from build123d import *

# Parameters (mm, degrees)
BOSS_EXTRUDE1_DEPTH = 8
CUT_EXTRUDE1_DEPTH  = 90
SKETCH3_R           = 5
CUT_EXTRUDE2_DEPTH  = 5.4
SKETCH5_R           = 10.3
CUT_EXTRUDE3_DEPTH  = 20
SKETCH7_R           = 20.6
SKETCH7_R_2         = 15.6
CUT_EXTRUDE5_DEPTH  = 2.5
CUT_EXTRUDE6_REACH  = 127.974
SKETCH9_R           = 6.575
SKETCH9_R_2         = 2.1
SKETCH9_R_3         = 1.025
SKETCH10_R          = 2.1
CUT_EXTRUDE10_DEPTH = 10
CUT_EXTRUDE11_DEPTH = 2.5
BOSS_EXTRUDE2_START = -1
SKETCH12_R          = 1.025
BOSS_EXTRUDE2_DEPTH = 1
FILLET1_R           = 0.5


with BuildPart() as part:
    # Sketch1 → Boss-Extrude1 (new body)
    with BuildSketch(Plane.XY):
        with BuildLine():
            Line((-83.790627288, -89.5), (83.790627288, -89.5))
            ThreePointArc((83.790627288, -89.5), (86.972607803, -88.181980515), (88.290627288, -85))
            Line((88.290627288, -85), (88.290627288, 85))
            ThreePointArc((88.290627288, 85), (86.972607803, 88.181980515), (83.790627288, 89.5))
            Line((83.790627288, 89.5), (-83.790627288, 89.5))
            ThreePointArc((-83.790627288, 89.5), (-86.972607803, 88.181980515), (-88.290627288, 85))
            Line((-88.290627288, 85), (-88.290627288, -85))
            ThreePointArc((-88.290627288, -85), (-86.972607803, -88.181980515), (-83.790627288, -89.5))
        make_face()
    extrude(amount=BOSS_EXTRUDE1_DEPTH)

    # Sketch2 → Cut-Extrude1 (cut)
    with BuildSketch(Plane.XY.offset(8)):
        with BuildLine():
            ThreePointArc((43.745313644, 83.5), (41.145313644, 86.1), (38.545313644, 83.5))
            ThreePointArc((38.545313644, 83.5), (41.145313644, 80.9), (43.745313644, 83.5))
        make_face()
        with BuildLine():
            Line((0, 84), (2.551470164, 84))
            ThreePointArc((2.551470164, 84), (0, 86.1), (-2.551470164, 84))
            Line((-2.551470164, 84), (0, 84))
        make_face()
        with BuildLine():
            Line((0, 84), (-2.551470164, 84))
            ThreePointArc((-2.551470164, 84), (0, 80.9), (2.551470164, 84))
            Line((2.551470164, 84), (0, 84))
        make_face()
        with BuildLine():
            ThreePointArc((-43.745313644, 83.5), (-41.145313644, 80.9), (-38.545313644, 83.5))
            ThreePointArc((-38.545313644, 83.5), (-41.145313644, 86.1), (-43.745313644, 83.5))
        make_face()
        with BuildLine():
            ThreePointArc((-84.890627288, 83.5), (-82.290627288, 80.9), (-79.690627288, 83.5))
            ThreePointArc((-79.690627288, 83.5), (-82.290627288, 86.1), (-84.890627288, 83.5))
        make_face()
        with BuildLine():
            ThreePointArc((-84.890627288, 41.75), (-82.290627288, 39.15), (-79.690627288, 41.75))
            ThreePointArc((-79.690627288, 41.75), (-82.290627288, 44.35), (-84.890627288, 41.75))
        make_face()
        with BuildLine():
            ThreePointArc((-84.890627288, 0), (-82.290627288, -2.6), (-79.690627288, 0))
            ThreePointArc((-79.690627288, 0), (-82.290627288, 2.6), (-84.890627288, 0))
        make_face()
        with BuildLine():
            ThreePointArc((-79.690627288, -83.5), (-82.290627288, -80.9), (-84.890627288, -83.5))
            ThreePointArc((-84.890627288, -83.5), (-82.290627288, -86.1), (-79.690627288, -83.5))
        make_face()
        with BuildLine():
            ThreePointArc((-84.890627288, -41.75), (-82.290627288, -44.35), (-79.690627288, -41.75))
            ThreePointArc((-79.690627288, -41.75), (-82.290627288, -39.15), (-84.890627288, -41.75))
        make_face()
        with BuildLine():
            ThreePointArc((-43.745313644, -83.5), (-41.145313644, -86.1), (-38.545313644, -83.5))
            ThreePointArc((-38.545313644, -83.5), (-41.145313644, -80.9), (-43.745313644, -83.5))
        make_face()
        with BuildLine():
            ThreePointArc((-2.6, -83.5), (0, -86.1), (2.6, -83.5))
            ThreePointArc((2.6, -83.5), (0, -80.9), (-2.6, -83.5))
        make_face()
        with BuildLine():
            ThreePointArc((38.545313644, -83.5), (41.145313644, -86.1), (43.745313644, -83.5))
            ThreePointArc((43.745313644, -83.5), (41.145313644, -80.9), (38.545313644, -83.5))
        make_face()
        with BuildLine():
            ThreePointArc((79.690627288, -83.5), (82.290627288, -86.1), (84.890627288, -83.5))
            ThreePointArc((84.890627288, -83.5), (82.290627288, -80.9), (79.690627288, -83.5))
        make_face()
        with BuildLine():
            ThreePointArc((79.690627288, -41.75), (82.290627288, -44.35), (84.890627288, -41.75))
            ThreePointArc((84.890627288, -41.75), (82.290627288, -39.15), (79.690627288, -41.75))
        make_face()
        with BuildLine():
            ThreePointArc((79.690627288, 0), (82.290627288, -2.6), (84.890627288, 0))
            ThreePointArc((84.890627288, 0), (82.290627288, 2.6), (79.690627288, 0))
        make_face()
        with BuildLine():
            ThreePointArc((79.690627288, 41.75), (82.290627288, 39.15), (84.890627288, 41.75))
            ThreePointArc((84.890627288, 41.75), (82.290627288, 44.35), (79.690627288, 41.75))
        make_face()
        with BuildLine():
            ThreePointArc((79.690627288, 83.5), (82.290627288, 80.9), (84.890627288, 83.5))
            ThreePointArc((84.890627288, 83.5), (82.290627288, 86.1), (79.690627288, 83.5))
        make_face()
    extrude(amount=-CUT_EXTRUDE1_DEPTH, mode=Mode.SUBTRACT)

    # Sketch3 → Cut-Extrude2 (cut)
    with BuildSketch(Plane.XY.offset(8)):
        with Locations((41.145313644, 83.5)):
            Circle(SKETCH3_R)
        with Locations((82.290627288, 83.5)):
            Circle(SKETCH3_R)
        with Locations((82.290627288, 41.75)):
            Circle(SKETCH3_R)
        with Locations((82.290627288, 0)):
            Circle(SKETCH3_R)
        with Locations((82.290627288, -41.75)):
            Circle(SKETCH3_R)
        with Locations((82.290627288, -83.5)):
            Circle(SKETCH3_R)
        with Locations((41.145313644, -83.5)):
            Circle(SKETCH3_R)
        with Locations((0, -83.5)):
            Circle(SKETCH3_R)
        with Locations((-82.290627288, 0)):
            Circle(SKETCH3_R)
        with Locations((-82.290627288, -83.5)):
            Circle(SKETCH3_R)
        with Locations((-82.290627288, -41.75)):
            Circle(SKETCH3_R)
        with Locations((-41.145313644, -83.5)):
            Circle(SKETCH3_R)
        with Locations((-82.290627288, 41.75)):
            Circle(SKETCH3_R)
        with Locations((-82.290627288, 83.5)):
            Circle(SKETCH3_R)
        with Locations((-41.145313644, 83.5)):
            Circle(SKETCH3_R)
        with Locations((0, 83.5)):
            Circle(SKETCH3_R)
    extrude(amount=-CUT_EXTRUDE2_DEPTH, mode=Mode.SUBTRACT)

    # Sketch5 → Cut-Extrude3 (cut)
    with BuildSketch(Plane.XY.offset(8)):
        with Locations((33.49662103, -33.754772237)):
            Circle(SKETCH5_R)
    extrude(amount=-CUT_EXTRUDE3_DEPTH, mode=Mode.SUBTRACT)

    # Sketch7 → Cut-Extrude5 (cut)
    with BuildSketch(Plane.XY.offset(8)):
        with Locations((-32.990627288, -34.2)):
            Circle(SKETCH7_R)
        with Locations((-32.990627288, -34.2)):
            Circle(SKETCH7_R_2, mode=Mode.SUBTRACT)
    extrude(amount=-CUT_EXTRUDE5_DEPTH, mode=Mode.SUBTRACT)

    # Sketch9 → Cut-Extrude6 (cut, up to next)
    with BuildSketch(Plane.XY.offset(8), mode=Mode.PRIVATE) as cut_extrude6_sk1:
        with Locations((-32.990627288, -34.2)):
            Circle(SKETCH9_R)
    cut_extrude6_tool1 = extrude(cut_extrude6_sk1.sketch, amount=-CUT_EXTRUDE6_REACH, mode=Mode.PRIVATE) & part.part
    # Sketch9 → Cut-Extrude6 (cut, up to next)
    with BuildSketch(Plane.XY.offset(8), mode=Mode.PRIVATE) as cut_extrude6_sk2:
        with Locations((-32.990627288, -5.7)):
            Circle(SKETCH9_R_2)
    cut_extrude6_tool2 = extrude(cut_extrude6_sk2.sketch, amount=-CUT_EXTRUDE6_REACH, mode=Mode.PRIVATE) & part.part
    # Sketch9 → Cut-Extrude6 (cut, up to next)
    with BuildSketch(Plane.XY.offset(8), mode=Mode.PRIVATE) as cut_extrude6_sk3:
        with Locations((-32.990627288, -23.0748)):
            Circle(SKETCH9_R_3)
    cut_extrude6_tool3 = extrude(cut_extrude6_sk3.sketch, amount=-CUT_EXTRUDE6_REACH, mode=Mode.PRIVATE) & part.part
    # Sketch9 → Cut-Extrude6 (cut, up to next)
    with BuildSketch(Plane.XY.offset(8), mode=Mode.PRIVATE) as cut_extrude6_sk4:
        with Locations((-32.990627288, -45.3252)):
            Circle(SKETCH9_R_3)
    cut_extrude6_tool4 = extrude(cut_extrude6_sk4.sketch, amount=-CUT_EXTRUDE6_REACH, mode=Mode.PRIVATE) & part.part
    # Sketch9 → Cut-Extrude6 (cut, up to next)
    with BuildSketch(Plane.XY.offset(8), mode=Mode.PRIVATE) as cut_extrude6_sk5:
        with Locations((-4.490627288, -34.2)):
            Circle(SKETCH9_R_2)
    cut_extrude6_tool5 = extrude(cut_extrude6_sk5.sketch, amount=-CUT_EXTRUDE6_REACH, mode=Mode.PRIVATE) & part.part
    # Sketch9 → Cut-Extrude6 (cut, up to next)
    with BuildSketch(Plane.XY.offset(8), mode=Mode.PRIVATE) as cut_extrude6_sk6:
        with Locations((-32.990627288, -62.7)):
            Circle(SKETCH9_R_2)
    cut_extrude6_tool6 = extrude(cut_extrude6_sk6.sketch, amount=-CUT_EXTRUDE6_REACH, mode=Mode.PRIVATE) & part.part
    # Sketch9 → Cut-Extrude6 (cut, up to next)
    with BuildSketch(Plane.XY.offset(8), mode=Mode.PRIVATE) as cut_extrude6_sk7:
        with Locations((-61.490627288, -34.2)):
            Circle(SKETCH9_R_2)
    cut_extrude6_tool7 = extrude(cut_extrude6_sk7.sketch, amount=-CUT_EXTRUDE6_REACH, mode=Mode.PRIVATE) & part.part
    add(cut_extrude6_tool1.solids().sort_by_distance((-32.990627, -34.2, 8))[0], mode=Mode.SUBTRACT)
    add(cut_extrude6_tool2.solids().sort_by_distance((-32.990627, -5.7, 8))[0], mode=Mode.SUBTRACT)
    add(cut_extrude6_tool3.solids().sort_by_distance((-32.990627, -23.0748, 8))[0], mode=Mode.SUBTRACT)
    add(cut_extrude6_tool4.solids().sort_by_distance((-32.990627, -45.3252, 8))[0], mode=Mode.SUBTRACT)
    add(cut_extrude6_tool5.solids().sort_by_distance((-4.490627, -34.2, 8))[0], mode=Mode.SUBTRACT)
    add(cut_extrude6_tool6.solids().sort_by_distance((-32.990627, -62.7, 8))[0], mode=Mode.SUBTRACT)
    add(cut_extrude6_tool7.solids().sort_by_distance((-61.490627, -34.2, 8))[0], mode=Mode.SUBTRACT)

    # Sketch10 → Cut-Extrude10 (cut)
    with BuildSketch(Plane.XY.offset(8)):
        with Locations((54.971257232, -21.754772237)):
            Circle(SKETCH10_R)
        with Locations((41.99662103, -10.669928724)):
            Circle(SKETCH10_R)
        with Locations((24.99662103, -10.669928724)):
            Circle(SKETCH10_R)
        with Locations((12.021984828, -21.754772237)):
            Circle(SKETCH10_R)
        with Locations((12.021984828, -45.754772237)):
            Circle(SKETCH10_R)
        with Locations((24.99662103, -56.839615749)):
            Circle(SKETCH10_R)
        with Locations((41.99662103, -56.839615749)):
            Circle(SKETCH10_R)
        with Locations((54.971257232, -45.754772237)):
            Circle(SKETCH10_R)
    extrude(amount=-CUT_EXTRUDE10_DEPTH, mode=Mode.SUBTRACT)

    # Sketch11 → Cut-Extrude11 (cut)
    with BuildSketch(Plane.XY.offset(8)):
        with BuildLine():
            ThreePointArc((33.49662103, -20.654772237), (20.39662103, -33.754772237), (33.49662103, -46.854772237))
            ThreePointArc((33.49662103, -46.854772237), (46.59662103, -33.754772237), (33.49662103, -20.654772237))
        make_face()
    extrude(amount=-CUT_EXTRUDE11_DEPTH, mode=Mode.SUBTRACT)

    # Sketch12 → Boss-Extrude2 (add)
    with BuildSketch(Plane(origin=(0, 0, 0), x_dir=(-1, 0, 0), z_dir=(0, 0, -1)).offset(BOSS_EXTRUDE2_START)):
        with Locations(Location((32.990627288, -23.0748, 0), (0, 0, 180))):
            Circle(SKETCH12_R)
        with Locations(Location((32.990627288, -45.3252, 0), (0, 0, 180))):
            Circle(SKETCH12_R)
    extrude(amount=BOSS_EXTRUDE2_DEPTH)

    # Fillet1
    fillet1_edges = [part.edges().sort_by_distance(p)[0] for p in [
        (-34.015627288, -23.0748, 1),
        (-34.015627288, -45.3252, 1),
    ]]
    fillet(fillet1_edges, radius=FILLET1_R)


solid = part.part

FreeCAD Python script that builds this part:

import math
import FreeCAD as App
import Part
import Sketcher


def edges_at(feature, points):
    """Names of the edges that pass closest to the given points."""
    edges = feature.Shape.Edges
    near = lambda p: min(range(len(edges)), key=lambda i: edges[i].distToShape(Part.Vertex(*p))[0])
    return sorted({f"Edge{near(p) + 1}" for p in points})

doc = App.newDocument("Part")
body = doc.addObject("PartDesign::Body", "Body")

# Sketch on XY plane
sketch1 = doc.addObject("Sketcher::SketchObject", "Sketch")
body.addObject(sketch1)
sketch1.AttachmentSupport = (doc.XY_Plane, [""])
sketch1.MapMode = "FlatFace"
sketch1.addGeometry([
    Part.LineSegment(App.Vector(-83.8, -89.5, 0), App.Vector(83.8, -89.5, 0)),  # 0
    Part.ArcOfCircle(Part.Circle(App.Vector(83.8, -85, 0), App.Vector(0, 0, 1), 4.5), math.radians(-90), math.radians(0)),  # 1
    Part.LineSegment(App.Vector(88.3, -85, 0), App.Vector(88.3, 85, 0)),  # 2
    Part.ArcOfCircle(Part.Circle(App.Vector(83.8, 85, 0), App.Vector(0, 0, 1), 4.5), math.radians(0), math.radians(90)),  # 3
    Part.LineSegment(App.Vector(83.8, 89.5, 0), App.Vector(-83.8, 89.5, 0)),  # 4
    Part.ArcOfCircle(Part.Circle(App.Vector(-83.8, 85, 0), App.Vector(0, 0, 1), 4.5), math.radians(90), math.radians(180)),  # 5
    Part.LineSegment(App.Vector(-88.3, 85, 0), App.Vector(-88.3, -85, 0)),  # 6
    Part.ArcOfCircle(Part.Circle(App.Vector(-83.8, -85, 0), App.Vector(0, 0, 1), 4.5), math.radians(-180), math.radians(-90)),  # 7
], False)
sketch1.addConstraint([
    Sketcher.Constraint("Tangent", 0, 2, 1, 1),
    Sketcher.Constraint("Tangent", 1, 2, 2, 1),
    Sketcher.Constraint("Tangent", 2, 2, 3, 1),
    Sketcher.Constraint("Tangent", 3, 2, 4, 1),
    Sketcher.Constraint("Tangent", 4, 2, 5, 1),
    Sketcher.Constraint("Tangent", 5, 2, 6, 1),
    Sketcher.Constraint("Tangent", 6, 2, 7, 1),
    Sketcher.Constraint("Tangent", 7, 2, 0, 1),
    Sketcher.Constraint("Horizontal", 0),
    Sketcher.Constraint("Vertical", 2),
    Sketcher.Constraint("Horizontal", 4),
    Sketcher.Constraint("Vertical", 6),
    Sketcher.Constraint("Equal", 1, 3),
    Sketcher.Constraint("Equal", 3, 5),
    Sketcher.Constraint("Equal", 5, 7),
    Sketcher.Constraint("Symmetric", 1, 3, 5, 3, -1, 1),
    Sketcher.Constraint("Radius", 1, 4.5),
    Sketcher.Constraint("DistanceY", 2, 1, 2, 2, 170.0),
    Sketcher.Constraint("DistanceX", 0, 1, 0, 2, 167.581255),
])
pad1 = doc.addObject("PartDesign::Pad", "Pad")
body.addObject(pad1)
pad1.Profile = sketch1
pad1.Length = 8

# Sketch on XY plane
sketch2 = doc.addObject("Sketcher::SketchObject", "Sketch001")
body.addObject(sketch2)
sketch2.AttachmentSupport = (doc.XY_Plane, [""])
sketch2.MapMode = "FlatFace"
sketch2.AttachmentOffset = App.Placement(App.Vector(0, 0, 8), App.Rotation())
sketch2.addGeometry([
    Part.Circle(App.Vector(41.1, 83.5, 0), App.Vector(0, 0, 1), 2.6),  # 0
    Part.ArcOfCircle(Part.Circle(App.Vector(0, 83.5, 0), App.Vector(0, 0, 1), 2.6), math.radians(11), math.radians(169)),  # 1
    Part.ArcOfCircle(Part.Circle(App.Vector(0, 83.5, 0), App.Vector(0, 0, 1), 2.6), math.radians(169), math.radians(371)),  # 2
    Part.Circle(App.Vector(-41.1, 83.5, 0), App.Vector(0, 0, 1), 2.6),  # 3
    Part.Circle(App.Vector(-82.3, 83.5, 0), App.Vector(0, 0, 1), 2.6),  # 4
    Part.Circle(App.Vector(-82.3, 41.8, 0), App.Vector(0, 0, 1), 2.6),  # 5
    Part.Circle(App.Vector(-82.3, 0, 0), App.Vector(0, 0, 1), 2.6),  # 6
    Part.Circle(App.Vector(-82.3, -83.5, 0), App.Vector(0, 0, 1), 2.6),  # 7
    Part.Circle(App.Vector(-82.3, -41.8, 0), App.Vector(0, 0, 1), 2.6),  # 8
    Part.Circle(App.Vector(-41.1, -83.5, 0), App.Vector(0, 0, 1), 2.6),  # 9
    Part.Circle(App.Vector(0, -83.5, 0), App.Vector(0, 0, 1), 2.6),  # 10
    Part.Circle(App.Vector(41.1, -83.5, 0), App.Vector(0, 0, 1), 2.6),  # 11
    Part.Circle(App.Vector(82.3, -83.5, 0), App.Vector(0, 0, 1), 2.6),  # 12
    Part.Circle(App.Vector(82.3, -41.8, 0), App.Vector(0, 0, 1), 2.6),  # 13
    Part.Circle(App.Vector(82.3, 0, 0), App.Vector(0, 0, 1), 2.6),  # 14
    Part.Circle(App.Vector(82.3, 41.8, 0), App.Vector(0, 0, 1), 2.6),  # 15
    Part.Circle(App.Vector(82.3, 83.5, 0), App.Vector(0, 0, 1), 2.6),  # 16
], False)
sketch2.addConstraint([
    Sketcher.Constraint("Tangent", 1, 1, 2, 2),
    Sketcher.Constraint("Coincident", 2, 1, 1, 2),
    Sketcher.Constraint("Equal", 0, 1),
    Sketcher.Constraint("Equal", 2, 3),
    Sketcher.Constraint("Equal", 3, 4),
    Sketcher.Constraint("Equal", 4, 5),
    Sketcher.Constraint("Equal", 5, 6),
    Sketcher.Constraint("Equal", 6, 7),
    Sketcher.Constraint("Equal", 7, 8),
    Sketcher.Constraint("Equal", 8, 9),
    Sketcher.Constraint("Equal", 9, 10),
    Sketcher.Constraint("Equal", 10, 11),
    Sketcher.Constraint("Equal", 11, 12),
    Sketcher.Constraint("Equal", 12, 13),
    Sketcher.Constraint("Equal", 13, 14),
    Sketcher.Constraint("Equal", 14, 15),
    Sketcher.Constraint("Equal", 15, 16),
    Sketcher.Constraint("Symmetric", 0, 3, 9, 3, -1, 1),
    Sketcher.Constraint("Symmetric", 1, 3, 10, 3, -1, 1),
    Sketcher.Constraint("Symmetric", 3, 3, 11, 3, -1, 1),
    Sketcher.Constraint("Symmetric", 4, 3, 12, 3, -1, 1),
    Sketcher.Constraint("Symmetric", 5, 3, 13, 3, -1, 1),
    Sketcher.Constraint("Symmetric", 6, 3, 14, 3, -1, 1),
    Sketcher.Constraint("Symmetric", 8, 3, 15, 3, -1, 1),
    Sketcher.Constraint("Symmetric", 7, 3, 16, 3, -1, 1),
    Sketcher.Constraint("Symmetric", 0, 3, 3, 3, -2),
    Sketcher.Constraint("Symmetric", 7, 3, 12, 3, -2),
    Sketcher.Constraint("Symmetric", 8, 3, 13, 3, -2),
    Sketcher.Constraint("Symmetric", 1, 1, 2, 1, -2),
    Sketcher.Constraint("PointOnObject", 6, 3, -1),
    Sketcher.Constraint("Horizontal", 0, 3, 1, 3),
    Sketcher.Constraint("Horizontal", 3, 3, 4, 3),
    Sketcher.Constraint("Vertical", 4, 3, 5, 3),
    Sketcher.Constraint("Vertical", 5, 3, 6, 3),
    Sketcher.Constraint("Diameter", 0, 5.2),
    Sketcher.Constraint("DistanceY", -1, 1, 1, 1, 84.0),
    Sketcher.Constraint("DistanceY", 7, 3, 4, 3, 167.0),
    Sketcher.Constraint("DistanceY", 8, 3, 5, 3, 83.5),
    Sketcher.Constraint("DistanceX", 4, 3, 0, 3, 123.435941),
    Sketcher.Constraint("DistanceX", -1, 1, 0, 3, 41.145314),
])
pocket1 = doc.addObject("PartDesign::Pocket", "Pocket")
body.addObject(pocket1)
pocket1.Profile = sketch2
pocket1.Length = 90

# Sketch on XY plane
sketch3 = doc.addObject("Sketcher::SketchObject", "Sketch002")
body.addObject(sketch3)
sketch3.AttachmentSupport = (doc.XY_Plane, [""])
sketch3.MapMode = "FlatFace"
sketch3.AttachmentOffset = App.Placement(App.Vector(0, 0, 8), App.Rotation())
sketch3.addGeometry([
    Part.Circle(App.Vector(41, 84, 0), App.Vector(0, 0, 1), 5),  # 0
    Part.Circle(App.Vector(82, 84, 0), App.Vector(0, 0, 1), 5),  # 1
    Part.Circle(App.Vector(82, 42, 0), App.Vector(0, 0, 1), 5),  # 2
    Part.Circle(App.Vector(82, 0, 0), App.Vector(0, 0, 1), 5),  # 3
    Part.Circle(App.Vector(82, -42, 0), App.Vector(0, 0, 1), 5),  # 4
    Part.Circle(App.Vector(82, -84, 0), App.Vector(0, 0, 1), 5),  # 5
    Part.Circle(App.Vector(41, -84, 0), App.Vector(0, 0, 1), 5),  # 6
    Part.Circle(App.Vector(0, -84, 0), App.Vector(0, 0, 1), 5),  # 7
    Part.Circle(App.Vector(-82, 0, 0), App.Vector(0, 0, 1), 5),  # 8
    Part.Circle(App.Vector(-82, -84, 0), App.Vector(0, 0, 1), 5),  # 9
    Part.Circle(App.Vector(-82, -42, 0), App.Vector(0, 0, 1), 5),  # 10
    Part.Circle(App.Vector(-41, -84, 0), App.Vector(0, 0, 1), 5),  # 11
    Part.Circle(App.Vector(-82, 42, 0), App.Vector(0, 0, 1), 5),  # 12
    Part.Circle(App.Vector(-82, 84, 0), App.Vector(0, 0, 1), 5),  # 13
    Part.Circle(App.Vector(-41, 84, 0), App.Vector(0, 0, 1), 5),  # 14
    Part.Circle(App.Vector(0, 84, 0), App.Vector(0, 0, 1), 5),  # 15
], False)
sketch3.addConstraint([
    Sketcher.Constraint("Equal", 0, 1),
    Sketcher.Constraint("Equal", 1, 2),
    Sketcher.Constraint("Equal", 2, 3),
    Sketcher.Constraint("Equal", 3, 4),
    Sketcher.Constraint("Equal", 4, 5),
    Sketcher.Constraint("Equal", 5, 6),
    Sketcher.Constraint("Equal", 6, 7),
    Sketcher.Constraint("Equal", 7, 8),
    Sketcher.Constraint("Equal", 8, 9),
    Sketcher.Constraint("Equal", 9, 10),
    Sketcher.Constraint("Equal", 10, 11),
    Sketcher.Constraint("Equal", 11, 12),
    Sketcher.Constraint("Equal", 12, 13),
    Sketcher.Constraint("Equal", 13, 14),
    Sketcher.Constraint("Equal", 14, 15),
    Sketcher.Constraint("Symmetric", 3, 3, 8, 3, -1, 1),
    Sketcher.Constraint("Symmetric", 1, 3, 9, 3, -1, 1),
    Sketcher.Constraint("Symmetric", 2, 3, 10, 3, -1, 1),
    Sketcher.Constraint("Symmetric", 0, 3, 11, 3, -1, 1),
    Sketcher.Constraint("Symmetric", 4, 3, 12, 3, -1, 1),
    Sketcher.Constraint("Symmetric", 5, 3, 13, 3, -1, 1),
    Sketcher.Constraint("Symmetric", 6, 3, 14, 3, -1, 1),
    Sketcher.Constraint("Symmetric", 7, 3, 15, 3, -1, 1),
    Sketcher.Constraint("Symmetric", 5, 3, 9, 3, -2),
    Sketcher.Constraint("Symmetric", 4, 3, 10, 3, -2),
    Sketcher.Constraint("Symmetric", 6, 3, 11, 3, -2),
    Sketcher.Constraint("PointOnObject", 3, 3, -1),
    Sketcher.Constraint("PointOnObject", 7, 3, -2),
    Sketcher.Constraint("Horizontal", 0, 3, 1, 3),
    Sketcher.Constraint("Horizontal", 6, 3, 7, 3),
    Sketcher.Constraint("Vertical", 1, 3, 2, 3),
    Sketcher.Constraint("Vertical", 2, 3, 3, 3),
    Sketcher.Constraint("Diameter", 0, 10.0),
    Sketcher.Constraint("DistanceY", 5, 3, 1, 3, 167.0),
    Sketcher.Constraint("DistanceY", 4, 3, 2, 3, 83.5),
    Sketcher.Constraint("DistanceX", 8, 3, 0, 3, 123.435941),
    Sketcher.Constraint("DistanceX", -1, 1, 0, 3, 41.145314),
])
pocket2 = doc.addObject("PartDesign::Pocket", "Pocket001")
body.addObject(pocket2)
pocket2.Profile = sketch3
pocket2.Length = 5.4

# Sketch on XY plane
sketch4 = doc.addObject("Sketcher::SketchObject", "Sketch003")
body.addObject(sketch4)
sketch4.AttachmentSupport = (doc.XY_Plane, [""])
sketch4.MapMode = "FlatFace"
sketch4.AttachmentOffset = App.Placement(App.Vector(0, 0, 8), App.Rotation())
sketch4.addGeometry(Part.Circle(App.Vector(33, -34, 0), App.Vector(0, 0, 1), 10), False)
sketch4.addConstraint([
    Sketcher.Constraint("Diameter", 0, 20.6),
    Sketcher.Constraint("DistanceX", -1, 1, 0, 3, 33.496621),
    Sketcher.Constraint("DistanceY", 0, 3, -1, 1, 33.754772),
])
pocket3 = doc.addObject("PartDesign::Pocket", "Pocket002")
body.addObject(pocket3)
pocket3.Profile = sketch4
pocket3.Length = 20

# Sketch on XY plane
sketch5 = doc.addObject("Sketcher::SketchObject", "Sketch004")
body.addObject(sketch5)
sketch5.AttachmentSupport = (doc.XY_Plane, [""])
sketch5.MapMode = "FlatFace"
sketch5.AttachmentOffset = App.Placement(App.Vector(0, 0, 8), App.Rotation())
sketch5.addGeometry([
    Part.Circle(App.Vector(-33, -34, 0), App.Vector(0, 0, 1), 21),
    Part.Circle(App.Vector(-33, -34, 0), App.Vector(0, 0, 1), 16),
], False)
sketch5.addConstraint([
    Sketcher.Constraint("Coincident", 1, 3, 0, 3),
    Sketcher.Constraint("Diameter", 0, 41.2),
    Sketcher.Constraint("Diameter", 1, 31.2),
    Sketcher.Constraint("DistanceY", 0, 3, -1, 1, 34.2),
    Sketcher.Constraint("DistanceX", 0, 3, -1, 1, 32.990627),
])
pocket4 = doc.addObject("PartDesign::Pocket", "Pocket003")
body.addObject(pocket4)
pocket4.Profile = sketch5
pocket4.Length = 2.5

# Sketch on XY plane
sketch6 = doc.addObject("Sketcher::SketchObject", "Sketch005")
body.addObject(sketch6)
sketch6.AttachmentSupport = (doc.XY_Plane, [""])
sketch6.MapMode = "FlatFace"
sketch6.AttachmentOffset = App.Placement(App.Vector(0, 0, 8), App.Rotation())
sketch6.addGeometry(Part.Circle(App.Vector(-33, -34, 0), App.Vector(0, 0, 1), 7), False)
sketch6.addConstraint([
    Sketcher.Constraint("Diameter", 0, 13.15),
    Sketcher.Constraint("DistanceY", 0, 3, -1, 1, 34.2),
    Sketcher.Constraint("DistanceX", 0, 3, -1, 1, 32.990627),
])
pocket5 = doc.addObject("PartDesign::Pocket", "Pocket004")
body.addObject(pocket5)
pocket5.Profile = sketch6
pocket5.Type = "UpToFirst"

# Sketch on XY plane
sketch7 = doc.addObject("Sketcher::SketchObject", "Sketch006")
body.addObject(sketch7)
sketch7.AttachmentSupport = (doc.XY_Plane, [""])
sketch7.MapMode = "FlatFace"
sketch7.AttachmentOffset = App.Placement(App.Vector(0, 0, 8), App.Rotation())
sketch7.addGeometry(Part.Circle(App.Vector(-33, -5.7, 0), App.Vector(0, 0, 1), 2.1), False)
sketch7.addConstraint([
    Sketcher.Constraint("Diameter", 0, 4.2),
    Sketcher.Constraint("DistanceY", 0, 3, -1, 1, 5.7),
    Sketcher.Constraint("DistanceX", 0, 3, -1, 1, 32.990627),
])
pocket6 = doc.addObject("PartDesign::Pocket", "Pocket005")
body.addObject(pocket6)
pocket6.Profile = sketch7
pocket6.Type = "UpToFirst"

# Sketch on XY plane
sketch8 = doc.addObject("Sketcher::SketchObject", "Sketch007")
body.addObject(sketch8)
sketch8.AttachmentSupport = (doc.XY_Plane, [""])
sketch8.MapMode = "FlatFace"
sketch8.AttachmentOffset = App.Placement(App.Vector(0, 0, 8), App.Rotation())
sketch8.addGeometry(Part.Circle(App.Vector(-33, -23.1, 0), App.Vector(0, 0, 1), 1), False)
sketch8.addConstraint([
    Sketcher.Constraint("Diameter", 0, 2.05),
    Sketcher.Constraint("DistanceY", 0, 3, -1, 1, 23.0748),
    Sketcher.Constraint("DistanceX", 0, 3, -1, 1, 32.990627),
])
pocket7 = doc.addObject("PartDesign::Pocket", "Pocket006")
body.addObject(pocket7)
pocket7.Profile = sketch8
pocket7.Type = "UpToFirst"

# Sketch on XY plane
sketch9 = doc.addObject("Sketcher::SketchObject", "Sketch008")
body.addObject(sketch9)
sketch9.AttachmentSupport = (doc.XY_Plane, [""])
sketch9.MapMode = "FlatFace"
sketch9.AttachmentOffset = App.Placement(App.Vector(0, 0, 8), App.Rotation())
sketch9.addGeometry(Part.Circle(App.Vector(-33, -45.3, 0), App.Vector(0, 0, 1), 1), False)
sketch9.addConstraint([
    Sketcher.Constraint("Diameter", 0, 2.05),
    Sketcher.Constraint("DistanceY", 0, 3, -1, 1, 45.3252),
    Sketcher.Constraint("DistanceX", 0, 3, -1, 1, 32.990627),
])
pocket8 = doc.addObject("PartDesign::Pocket", "Pocket007")
body.addObject(pocket8)
pocket8.Profile = sketch9
pocket8.Type = "UpToFirst"

# Sketch on XY plane
sketch10 = doc.addObject("Sketcher::SketchObject", "Sketch009")
body.addObject(sketch10)
sketch10.AttachmentSupport = (doc.XY_Plane, [""])
sketch10.MapMode = "FlatFace"
sketch10.AttachmentOffset = App.Placement(App.Vector(0, 0, 8), App.Rotation())
sketch10.addGeometry(Part.Circle(App.Vector(-4.5, -34.2, 0), App.Vector(0, 0, 1), 2.1), False)
sketch10.addConstraint([
    Sketcher.Constraint("Diameter", 0, 4.2),
    Sketcher.Constraint("DistanceY", 0, 3, -1, 1, 34.2),
    Sketcher.Constraint("DistanceX", 0, 3, -1, 1, 4.490627),
])
pocket9 = doc.addObject("PartDesign::Pocket", "Pocket008")
body.addObject(pocket9)
pocket9.Profile = sketch10
pocket9.Type = "UpToFirst"

# Sketch on XY plane
sketch11 = doc.addObject("Sketcher::SketchObject", "Sketch010")
body.addObject(sketch11)
sketch11.AttachmentSupport = (doc.XY_Plane, [""])
sketch11.MapMode = "FlatFace"
sketch11.AttachmentOffset = App.Placement(App.Vector(0, 0, 8), App.Rotation())
sketch11.addGeometry(Part.Circle(App.Vector(-33, -62.7, 0), App.Vector(0, 0, 1), 2.1), False)
sketch11.addConstraint([
    Sketcher.Constraint("Diameter", 0, 4.2),
    Sketcher.Constraint("DistanceY", 0, 3, -1, 1, 62.7),
    Sketcher.Constraint("DistanceX", 0, 3, -1, 1, 32.990627),
])
pocket10 = doc.addObject("PartDesign::Pocket", "Pocket009")
body.addObject(pocket10)
pocket10.Profile = sketch11
pocket10.Type = "UpToFirst"

# Sketch on XY plane
sketch12 = doc.addObject("Sketcher::SketchObject", "Sketch011")
body.addObject(sketch12)
sketch12.AttachmentSupport = (doc.XY_Plane, [""])
sketch12.MapMode = "FlatFace"
sketch12.AttachmentOffset = App.Placement(App.Vector(0, 0, 8), App.Rotation())
sketch12.addGeometry(Part.Circle(App.Vector(-61.5, -34.2, 0), App.Vector(0, 0, 1), 2.1), False)
sketch12.addConstraint([
    Sketcher.Constraint("Diameter", 0, 4.2),
    Sketcher.Constraint("DistanceY", 0, 3, -1, 1, 34.2),
    Sketcher.Constraint("DistanceX", 0, 3, -1, 1, 61.490627),
])
pocket11 = doc.addObject("PartDesign::Pocket", "Pocket010")
body.addObject(pocket11)
pocket11.Profile = sketch12
pocket11.Type = "UpToFirst"

# Sketch on XY plane
sketch13 = doc.addObject("Sketcher::SketchObject", "Sketch012")
body.addObject(sketch13)
sketch13.AttachmentSupport = (doc.XY_Plane, [""])
sketch13.MapMode = "FlatFace"
sketch13.AttachmentOffset = App.Placement(App.Vector(0, 0, 8), App.Rotation())
sketch13.addGeometry([
    Part.Circle(App.Vector(55, -21.8, 0), App.Vector(0, 0, 1), 2.1),  # 0
    Part.Circle(App.Vector(42, -10.7, 0), App.Vector(0, 0, 1), 2.1),  # 1
    Part.Circle(App.Vector(25, -10.7, 0), App.Vector(0, 0, 1), 2.1),  # 2
    Part.Circle(App.Vector(12, -21.8, 0), App.Vector(0, 0, 1), 2.1),  # 3
    Part.Circle(App.Vector(12, -45.8, 0), App.Vector(0, 0, 1), 2.1),  # 4
    Part.Circle(App.Vector(25, -56.8, 0), App.Vector(0, 0, 1), 2.1),  # 5
    Part.Circle(App.Vector(42, -56.8, 0), App.Vector(0, 0, 1), 2.1),  # 6
    Part.Circle(App.Vector(55, -45.8, 0), App.Vector(0, 0, 1), 2.1),  # 7
], False)
sketch13.addConstraint([
    Sketcher.Constraint("Equal", 0, 1),
    Sketcher.Constraint("Equal", 1, 2),
    Sketcher.Constraint("Equal", 2, 3),
    Sketcher.Constraint("Equal", 3, 4),
    Sketcher.Constraint("Equal", 4, 5),
    Sketcher.Constraint("Equal", 5, 6),
    Sketcher.Constraint("Equal", 6, 7),
    Sketcher.Constraint("Horizontal", 1, 3, 2, 3),
    Sketcher.Constraint("Horizontal", 0, 3, 3, 3),
    Sketcher.Constraint("Horizontal", 5, 3, 6, 3),
    Sketcher.Constraint("Horizontal", 4, 3, 7, 3),
    Sketcher.Constraint("Vertical", 3, 3, 4, 3),
    Sketcher.Constraint("Vertical", 2, 3, 5, 3),
    Sketcher.Constraint("Vertical", 1, 3, 6, 3),
    Sketcher.Constraint("Vertical", 0, 3, 7, 3),
    Sketcher.Constraint("Diameter", 0, 4.2),
    Sketcher.Constraint("DistanceX", 2, 3, 1, 3, 17.0),
    Sketcher.Constraint("DistanceY", 4, 3, 3, 3, 24.0),
    Sketcher.Constraint("DistanceX", -1, 1, 1, 3, 41.996621),
    Sketcher.Constraint("DistanceY", 1, 3, -1, 1, 10.669929),
    Sketcher.Constraint("DistanceX", -1, 1, 0, 3, 54.971257),
    Sketcher.Constraint("DistanceY", 0, 3, -1, 1, 21.754772),
    Sketcher.Constraint("DistanceX", -1, 1, 3, 3, 12.021985),
    Sketcher.Constraint("DistanceY", 5, 3, -1, 1, 56.839616),
])
pocket12 = doc.addObject("PartDesign::Pocket", "Pocket011")
body.addObject(pocket12)
pocket12.Profile = sketch13
pocket12.Length = 10

# Sketch on XY plane
sketch14 = doc.addObject("Sketcher::SketchObject", "Sketch013")
body.addObject(sketch14)
sketch14.AttachmentSupport = (doc.XY_Plane, [""])
sketch14.MapMode = "FlatFace"
sketch14.AttachmentOffset = App.Placement(App.Vector(0, 0, 8), App.Rotation())
sketch14.addGeometry(Part.Circle(App.Vector(33, -34, 0), App.Vector(0, 0, 1), 13), False)
sketch14.addConstraint([
    Sketcher.Constraint("Diameter", 0, 26.2),
    Sketcher.Constraint("DistanceX", -1, 1, 0, 3, 33.496621),
    Sketcher.Constraint("DistanceY", 0, 3, -1, 1, 33.754772),
])
pocket13 = doc.addObject("PartDesign::Pocket", "Pocket012")
body.addObject(pocket13)
pocket13.Profile = sketch14
pocket13.Length = 2.5

# Sketch on XY plane
sketch15 = doc.addObject("Sketcher::SketchObject", "Sketch014")
body.addObject(sketch15)
sketch15.AttachmentSupport = (doc.XY_Plane, [""])
sketch15.MapMode = "FlatFace"
sketch15.AttachmentOffset = App.Placement(App.Vector(0, 0, 1), App.Rotation())
sketch15.addGeometry([
    Part.Circle(App.Vector(-33, -23.1, 0), App.Vector(0, 0, 1), 1),
    Part.Circle(App.Vector(-33, -45.3, 0), App.Vector(0, 0, 1), 1),
], False)
sketch15.addConstraint([
    Sketcher.Constraint("Equal", 0, 1),
    Sketcher.Constraint("Vertical", 0, 3, 1, 3),
    Sketcher.Constraint("Diameter", 0, 2.05),
    Sketcher.Constraint("DistanceY", 0, 3, -1, 1, 23.0748),
    Sketcher.Constraint("DistanceY", 1, 3, -1, 1, 45.3252),
    Sketcher.Constraint("DistanceX", 0, 3, -1, 1, 32.990627),
])
pad2 = doc.addObject("PartDesign::Pad", "Pad001")
body.addObject(pad2)
pad2.Profile = sketch15
pad2.Length = 1
pad2.Reversed = True
doc.recompute()

fillet = doc.addObject("PartDesign::Fillet", "Fillet")
body.addObject(fillet)
fillet.Base = (pad2, edges_at(pad2, [(-34.016, -23.075, 1), (-34.016, -45.325, 1)]))
fillet.Radius = 0.5

doc.recompute()
